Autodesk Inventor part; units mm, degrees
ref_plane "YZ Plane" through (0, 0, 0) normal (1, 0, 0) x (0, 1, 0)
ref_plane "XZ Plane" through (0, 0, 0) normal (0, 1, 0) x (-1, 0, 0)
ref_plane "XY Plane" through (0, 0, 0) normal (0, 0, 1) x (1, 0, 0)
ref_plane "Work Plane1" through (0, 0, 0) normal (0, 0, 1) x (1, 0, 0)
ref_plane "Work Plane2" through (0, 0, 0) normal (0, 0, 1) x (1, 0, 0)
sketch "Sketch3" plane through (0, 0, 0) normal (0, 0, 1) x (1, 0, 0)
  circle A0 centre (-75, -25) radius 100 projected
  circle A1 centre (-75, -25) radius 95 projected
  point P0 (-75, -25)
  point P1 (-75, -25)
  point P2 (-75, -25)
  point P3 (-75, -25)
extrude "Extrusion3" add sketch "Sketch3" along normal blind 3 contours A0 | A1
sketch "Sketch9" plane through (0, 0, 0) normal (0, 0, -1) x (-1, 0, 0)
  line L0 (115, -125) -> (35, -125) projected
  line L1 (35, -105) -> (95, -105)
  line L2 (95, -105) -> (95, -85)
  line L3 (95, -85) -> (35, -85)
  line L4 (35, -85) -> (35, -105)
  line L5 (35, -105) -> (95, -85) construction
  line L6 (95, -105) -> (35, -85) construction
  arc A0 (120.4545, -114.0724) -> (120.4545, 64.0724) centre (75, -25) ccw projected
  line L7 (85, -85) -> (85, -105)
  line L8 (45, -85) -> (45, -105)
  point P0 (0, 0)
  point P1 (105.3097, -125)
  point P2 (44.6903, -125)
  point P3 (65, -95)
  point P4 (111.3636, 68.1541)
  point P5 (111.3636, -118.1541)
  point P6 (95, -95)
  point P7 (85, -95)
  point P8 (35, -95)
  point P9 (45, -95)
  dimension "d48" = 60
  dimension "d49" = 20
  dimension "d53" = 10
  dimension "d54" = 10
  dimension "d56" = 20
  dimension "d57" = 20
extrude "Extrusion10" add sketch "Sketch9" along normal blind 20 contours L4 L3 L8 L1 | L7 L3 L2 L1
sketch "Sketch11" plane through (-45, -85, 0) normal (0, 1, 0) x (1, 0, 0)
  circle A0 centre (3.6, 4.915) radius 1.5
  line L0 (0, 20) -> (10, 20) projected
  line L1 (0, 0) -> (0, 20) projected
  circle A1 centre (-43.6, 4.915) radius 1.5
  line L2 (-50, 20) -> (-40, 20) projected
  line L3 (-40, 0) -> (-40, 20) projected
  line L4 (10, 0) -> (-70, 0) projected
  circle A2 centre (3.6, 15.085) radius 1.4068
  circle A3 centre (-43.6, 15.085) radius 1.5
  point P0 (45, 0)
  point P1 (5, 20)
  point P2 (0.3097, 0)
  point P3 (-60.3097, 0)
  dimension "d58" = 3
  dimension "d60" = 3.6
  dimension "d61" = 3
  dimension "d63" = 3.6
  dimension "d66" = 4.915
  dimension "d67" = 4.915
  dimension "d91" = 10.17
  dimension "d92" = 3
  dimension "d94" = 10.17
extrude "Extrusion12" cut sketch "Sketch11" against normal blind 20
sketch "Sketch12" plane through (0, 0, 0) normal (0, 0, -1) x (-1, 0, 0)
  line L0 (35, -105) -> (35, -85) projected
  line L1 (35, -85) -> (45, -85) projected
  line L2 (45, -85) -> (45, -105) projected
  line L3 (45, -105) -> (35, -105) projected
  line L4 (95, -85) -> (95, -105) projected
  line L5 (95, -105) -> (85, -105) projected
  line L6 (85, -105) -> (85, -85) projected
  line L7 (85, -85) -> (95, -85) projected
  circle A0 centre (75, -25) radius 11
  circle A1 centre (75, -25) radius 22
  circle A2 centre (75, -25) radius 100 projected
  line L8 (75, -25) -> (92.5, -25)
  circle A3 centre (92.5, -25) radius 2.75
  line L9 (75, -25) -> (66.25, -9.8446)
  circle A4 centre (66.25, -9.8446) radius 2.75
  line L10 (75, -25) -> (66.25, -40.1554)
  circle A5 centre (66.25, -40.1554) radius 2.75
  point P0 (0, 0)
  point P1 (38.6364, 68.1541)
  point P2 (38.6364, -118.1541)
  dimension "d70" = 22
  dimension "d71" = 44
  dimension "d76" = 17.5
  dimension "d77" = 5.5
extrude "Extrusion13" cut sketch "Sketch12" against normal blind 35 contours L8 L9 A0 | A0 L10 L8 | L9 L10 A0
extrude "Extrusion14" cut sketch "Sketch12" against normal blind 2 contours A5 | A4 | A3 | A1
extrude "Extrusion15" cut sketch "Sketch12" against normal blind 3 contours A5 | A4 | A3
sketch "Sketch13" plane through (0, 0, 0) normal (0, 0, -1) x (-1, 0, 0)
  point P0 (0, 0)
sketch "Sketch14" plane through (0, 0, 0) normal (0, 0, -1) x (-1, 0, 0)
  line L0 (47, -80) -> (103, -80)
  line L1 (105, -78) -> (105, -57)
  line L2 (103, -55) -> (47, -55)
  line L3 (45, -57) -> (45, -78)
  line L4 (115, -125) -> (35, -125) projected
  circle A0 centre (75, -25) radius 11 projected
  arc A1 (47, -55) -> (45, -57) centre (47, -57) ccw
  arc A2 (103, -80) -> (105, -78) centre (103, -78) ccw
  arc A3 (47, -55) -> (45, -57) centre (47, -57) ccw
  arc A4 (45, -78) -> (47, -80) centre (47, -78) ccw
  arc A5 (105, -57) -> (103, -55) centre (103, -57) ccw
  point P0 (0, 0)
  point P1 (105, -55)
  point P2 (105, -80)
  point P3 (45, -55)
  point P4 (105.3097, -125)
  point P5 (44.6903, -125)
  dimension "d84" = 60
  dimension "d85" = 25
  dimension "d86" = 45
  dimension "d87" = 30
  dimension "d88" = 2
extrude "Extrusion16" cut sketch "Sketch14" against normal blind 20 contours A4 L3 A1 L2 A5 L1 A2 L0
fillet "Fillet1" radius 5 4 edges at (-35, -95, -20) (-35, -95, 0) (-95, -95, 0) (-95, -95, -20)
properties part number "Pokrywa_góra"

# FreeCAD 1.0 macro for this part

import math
import FreeCAD as App
import Part
import Sketcher
from FreeCAD import Vector
Q = App.Units.Quantity


def edges_at(feature, points):
    """Names of the edges that pass closest to the given points."""
    edges = feature.Shape.Edges
    near = lambda p: min(range(len(edges)), key=lambda i: edges[i].distToShape(Part.Vertex(*p))[0])
    return sorted({f"Edge{near(p) + 1}" for p in points})

doc = App.newDocument("Part")
params = doc.addObject("Spreadsheet::Sheet", "Params")
for row, (alias, value) in enumerate([
    ("sketch1_diameter", "200 mm"),
    ("pad1_length", "3 mm"),
    ("sketch2_width", "10 mm"),
    ("sketch2_height", "20 mm"),
    ("pad2_length", "20 mm"),
    ("sketch3_diameter", "3 mm"),
    ("pocket1_length", "20 mm"),
    ("sketch4_diameter", "22 mm"),
    ("pocket2_length", "35 mm"),
    ("sketch5_diameter", "44 mm"),
    ("sketch5_radius", "11 mm"),
    ("pocket3_length", "2 mm"),
    ("sketch6_diameter", "5.5 mm"),
    ("pocket4_length", "3 mm"),
    ("sketch7_radius", "2 mm"),
    ("sketch7_width", "56 mm"),
    ("pocket5_length", "20 mm"),
    ("fillet_radius", "5 mm"),
], start=1):
    params.set(f"A{row}", alias)
    params.set(f"B{row}", "=" + value)
    params.setAlias(f"B{row}", alias)

body = doc.addObject("PartDesign::Body", "Body")

sketch1 = body.newObject("Sketcher::SketchObject", "Sketch")
sketch1.AttachmentSupport = (doc.getObject("XY_Plane"), [""])
sketch1.MapMode = "FlatFace"
sketch1.addGeometry(Part.Circle(Vector(-75, -25, 0), Vector(0, 0, 1), 100), False)
sketch1.addConstraint(Sketcher.Constraint("Diameter", 0, Q("200 mm")))
sketch1.addConstraint(Sketcher.Constraint("DistanceX", 0, 3, -1, 1, Q("75 mm")))
sketch1.addConstraint(Sketcher.Constraint("DistanceY", 0, 3, -1, 1, Q("25 mm")))
sketch1.setExpression("Constraints[0]", "Params.sketch1_diameter")
pad1 = body.newObject("PartDesign::Pad", "Pad")
pad1.Profile = sketch1
pad1.setExpression("Length", "Params.pad1_length")

sketch2 = body.newObject("Sketcher::SketchObject", "Sketch001")
sketch2.AttachmentSupport = (doc.getObject("XY_Plane"), [""])
sketch2.MapMode = "FlatFace"
sketch2.addGeometry(Part.LineSegment(Vector(-35, -85, 0), Vector(-35, -105, 0)), False)
sketch2.addGeometry(Part.LineSegment(Vector(-35, -105, 0), Vector(-45, -105, 0)), False)
sketch2.addGeometry(Part.LineSegment(Vector(-45, -105, 0), Vector(-45, -85, 0)), False)
sketch2.addGeometry(Part.LineSegment(Vector(-45, -85, 0), Vector(-35, -85, 0)), False)
sketch2.addGeometry(Part.LineSegment(Vector(-85, -85, 0), Vector(-85, -105, 0)), False)
sketch2.addGeometry(Part.LineSegment(Vector(-85, -105, 0), Vector(-95, -105, 0)), False)
sketch2.addGeometry(Part.LineSegment(Vector(-95, -105, 0), Vector(-95, -85, 0)), False)
sketch2.addGeometry(Part.LineSegment(Vector(-95, -85, 0), Vector(-85, -85, 0)), False)
sketch2.addConstraint(Sketcher.Constraint("Coincident", 0, 2, 1, 1))
sketch2.addConstraint(Sketcher.Constraint("Coincident", 1, 2, 2, 1))
sketch2.addConstraint(Sketcher.Constraint("Coincident", 2, 2, 3, 1))
sketch2.addConstraint(Sketcher.Constraint("Coincident", 3, 2, 0, 1))
sketch2.addConstraint(Sketcher.Constraint("Coincident", 4, 2, 5, 1))
sketch2.addConstraint(Sketcher.Constraint("Coincident", 5, 2, 6, 1))
sketch2.addConstraint(Sketcher.Constraint("Coincident", 6, 2, 7, 1))
sketch2.addConstraint(Sketcher.Constraint("Coincident", 7, 2, 4, 1))
sketch2.addConstraint(Sketcher.Constraint("Vertical", 0))
sketch2.addConstraint(Sketcher.Constraint("Horizontal", 1))
sketch2.addConstraint(Sketcher.Constraint("Vertical", 2))
sketch2.addConstraint(Sketcher.Constraint("Horizontal", 3))
sketch2.addConstraint(Sketcher.Constraint("Vertical", 4))
sketch2.addConstraint(Sketcher.Constraint("Horizontal", 5))
sketch2.addConstraint(Sketcher.Constraint("Vertical", 6))
sketch2.addConstraint(Sketcher.Constraint("Horizontal", 7))
sketch2.addConstraint(Sketcher.Constraint("Horizontal", 1, 2, 4, 2))
sketch2.addConstraint(Sketcher.Constraint("Horizontal", 3, 2, 6, 2))
sketch2.addConstraint(Sketcher.Constraint("Equal", 3, 5))
sketch2.addConstraint(Sketcher.Constraint("DistanceX", 1, 2, 1, 1, Q("10 mm")))
sketch2.addConstraint(Sketcher.Constraint("DistanceY", 0, 2, 0, 1, Q("20 mm")))
sketch2.addConstraint(Sketcher.Constraint("DistanceX", 5, 2, 0, 2, Q("60 mm")))
sketch2.addConstraint(Sketcher.Constraint("DistanceX", 0, 2, -1, 1, Q("35 mm")))
sketch2.addConstraint(Sketcher.Constraint("DistanceY", 0, 2, -1, 1, Q("105 mm")))
sketch2.setExpression("Constraints[19]", "Params.sketch2_width")
sketch2.setExpression("Constraints[20]", "Params.sketch2_height")
pad2 = body.newObject("PartDesign::Pad", "Pad001")
pad2.Profile = sketch2
pad2.setExpression("Length", "Params.pad2_length")
pad2.Reversed = True

sketch3 = body.newObject("Sketcher::SketchObject", "Sketch002")
sketch3.AttachmentSupport = (doc.getObject("XZ_Plane"), [""])
sketch3.MapMode = "FlatFace"
sketch3.AttachmentOffset = App.Placement(Vector(0, 0, 85), App.Rotation())
sketch3.addGeometry(Part.Circle(Vector(-41.4, -4.9, 0), Vector(0, 0, 1), 1.5), False)
sketch3.addGeometry(Part.Circle(Vector(-88.6, -4.9, 0), Vector(0, 0, 1), 1.5), False)
sketch3.addGeometry(Part.Circle(Vector(-41.4, -15.1, 0), Vector(0, 0, 1), 1.4), False)
sketch3.addGeometry(Part.Circle(Vector(-88.6, -15.1, 0), Vector(0, 0, 1), 1.5), False)
sketch3.addConstraint(Sketcher.Constraint("Equal", 0, 1))
sketch3.addConstraint(Sketcher.Constraint("Equal", 1, 3))
sketch3.addConstraint(Sketcher.Constraint("Horizontal", 0, 3, 1, 3))
sketch3.addConstraint(Sketcher.Constraint("Horizontal", 2, 3, 3, 3))
sketch3.addConstraint(Sketcher.Constraint("Vertical", 0, 3, 2, 3))
sketch3.addConstraint(Sketcher.Constraint("Vertical", 1, 3, 3, 3))
sketch3.addConstraint(Sketcher.Constraint("Diameter", 0, Q("3 mm")))
sketch3.addConstraint(Sketcher.Constraint("DistanceY", 2, 3, 0, 3, Q("10.17 mm")))
sketch3.addConstraint(Sketcher.Constraint("DistanceY", 0, 3, -1, 1, Q("4.915 mm")))
sketch3.addConstraint(Sketcher.Constraint("Diameter", 2, Q("2.8136 mm")))
sketch3.addConstraint(Sketcher.Constraint("DistanceX", 0, 3, -1, 1, Q("41.4 mm")))
sketch3.addConstraint(Sketcher.Constraint("DistanceX", 1, 3, -1, 1, Q("88.6 mm")))
sketch3.setExpression("Constraints[6]", "Params.sketch3_diameter")
pocket1 = body.newObject("PartDesign::Pocket", "Pocket")
pocket1.Profile = sketch3
pocket1.setExpression("Length", "Params.pocket1_length")
pocket1.Reversed = True

sketch4 = body.newObject("Sketcher::SketchObject", "Sketch003")
sketch4.AttachmentSupport = (doc.getObject("XY_Plane"), [""])
sketch4.MapMode = "FlatFace"
sketch4.addGeometry(Part.Circle(Vector(-75, -25, 0), Vector(0, 0, 1), 11), False)
sketch4.addConstraint(Sketcher.Constraint("Diameter", 0, Q("22 mm")))
sketch4.addConstraint(Sketcher.Constraint("DistanceX", 0, 3, -1, 1, Q("75 mm")))
sketch4.addConstraint(Sketcher.Constraint("DistanceY", 0, 3, -1, 1, Q("25 mm")))
sketch4.setExpression("Constraints[0]", "Params.sketch4_diameter")
pocket2 = body.newObject("PartDesign::Pocket", "Pocket001")
pocket2.Profile = sketch4
pocket2.setExpression("Length", "Params.pocket2_length")
pocket2.Reversed = True

sketch5 = body.newObject("Sketcher::SketchObject", "Sketch004")
sketch5.AttachmentSupport = (doc.getObject("XY_Plane"), [""])
sketch5.MapMode = "FlatFace"
sketch5.addGeometry(Part.Circle(Vector(-75, -25, 0), Vector(0, 0, 1), 22), False)
sketch5.addGeometry(Part.ArcOfCircle(Part.Circle(Vector(-75, -25, 0), Vector(0, 0, 1), 11), math.radians(60), math.radians(180)), False)
sketch5.addGeometry(Part.ArcOfCircle(Part.Circle(Vector(-75, -25, 0), Vector(0, 0, 1), 11), math.radians(180), math.radians(300)), False)
sketch5.addGeometry(Part.ArcOfCircle(Part.Circle(Vector(-75, -25, 0), Vector(0, 0, 1), 11), math.radians(-60), math.radians(60)), False)
sketch5.addConstraint(Sketcher.Constraint("Tangent", 1, 2, 2, 1))
sketch5.addConstraint(Sketcher.Constraint("Tangent", 2, 2, 3, 1))
sketch5.addConstraint(Sketcher.Constraint("Tangent", 3, 2, 1, 1))
sketch5.addConstraint(Sketcher.Constraint("Coincident", 1, 3, 0, 3))
sketch5.addConstraint(Sketcher.Constraint("Horizontal", 3, 3, 1, 2))
sketch5.addConstraint(Sketcher.Constraint("Vertical", 2, 2, 3, 2))
sketch5.addConstraint(Sketcher.Constraint("Diameter", 0, Q("44 mm")))
sketch5.addConstraint(Sketcher.Constraint("Radius", 1, Q("11 mm")))
sketch5.addConstraint(Sketcher.Constraint("DistanceX", 0, 3, 2, 2, Q("5.5 mm")))
sketch5.addConstraint(Sketcher.Constraint("DistanceX", 0, 3, -1, 1, Q("75 mm")))
sketch5.addConstraint(Sketcher.Constraint("DistanceY", 0, 3, -1, 1, Q("25 mm")))
sketch5.setExpression("Constraints[6]", "Params.sketch5_diameter")
sketch5.setExpression("Constraints[7]", "Params.sketch5_radius")
pocket3 = body.newObject("PartDesign::Pocket", "Pocket002")
pocket3.Profile = sketch5
pocket3.setExpression("Length", "Params.pocket3_length")
pocket3.Reversed = True

sketch6 = body.newObject("Sketcher::SketchObject", "Sketch005")
sketch6.AttachmentSupport = (doc.getObject("XY_Plane"), [""])
sketch6.MapMode = "FlatFace"
sketch6.addGeometry(Part.Circle(Vector(-66.2, -40.2, 0), Vector(0, 0, 1), 2.8), False)
sketch6.addGeometry(Part.Circle(Vector(-66.2, -9.8, 0), Vector(0, 0, 1), 2.8), False)
sketch6.addGeometry(Part.Circle(Vector(-92.5, -25, 0), Vector(0, 0, 1), 2.8), False)
sketch6.addConstraint(Sketcher.Constraint("Equal", 0, 1))
sketch6.addConstraint(Sketcher.Constraint("Equal", 1, 2))
sketch6.addConstraint(Sketcher.Constraint("Vertical", 0, 3, 1, 3))
sketch6.addConstraint(Sketcher.Constraint("Diameter", 0, Q("5.5 mm")))
sketch6.addConstraint(Sketcher.Constraint("DistanceY", 2, 3, -1, 1, Q("25 mm")))
sketch6.addConstraint(Sketcher.Constraint("DistanceX", 2, 3, -1, 1, Q("92.5 mm")))
sketch6.addConstraint(Sketcher.Constraint("DistanceX", 0, 3, -1, 1, Q("66.25 mm")))
sketch6.addConstraint(Sketcher.Constraint("DistanceY", 0, 3, -1, 1, Q("40.1554 mm")))
sketch6.addConstraint(Sketcher.Constraint("DistanceY", 1, 3, -1, 1, Q("9.8446 mm")))
sketch6.setExpression("Constraints[3]", "Params.sketch6_diameter")
pocket4 = body.newObject("PartDesign::Pocket", "Pocket003")
pocket4.Profile = sketch6
pocket4.setExpression("Length", "Params.pocket4_length")
pocket4.Reversed = True

sketch7 = body.newObject("Sketcher::SketchObject", "Sketch006")
sketch7.AttachmentSupport = (doc.getObject("XY_Plane"), [""])
sketch7.MapMode = "FlatFace"
sketch7.addGeometry(Part.ArcOfCircle(Part.Circle(Vector(-47, -78, 0), Vector(0, 0, 1), 2), math.radians(-90), math.radians(0)), False)
sketch7.addGeometry(Part.LineSegment(Vector(-47, -80, 0), Vector(-103, -80, 0)), False)
sketch7.addGeometry(Part.ArcOfCircle(Part.Circle(Vector(-103, -78, 0), Vector(0, 0, 1), 2), math.radians(180), math.radians(270)), False)
sketch7.addGeometry(Part.LineSegment(Vector(-105, -78, 0), Vector(-105, -57, 0)), False)
sketch7.addGeometry(Part.ArcOfCircle(Part.Circle(Vector(-103, -57, 0), Vector(0, 0, 1), 2), math.radians(90), math.radians(180)), False)
sketch7.addGeometry(Part.LineSegment(Vector(-103, -55, 0), Vector(-47, -55, 0)), False)
sketch7.addGeometry(Part.ArcOfCircle(Part.Circle(Vector(-47, -57, 0), Vector(0, 0, 1), 2), math.radians(0), math.radians(90)), False)
sketch7.addGeometry(Part.LineSegment(Vector(-45, -57, 0), Vector(-45, -78, 0)), False)
sketch7.addConstraint(Sketcher.Constraint("Tangent", 0, 1, 1, 1))
sketch7.addConstraint(Sketcher.Constraint("Tangent", 1, 2, 2, 2))
sketch7.addConstraint(Sketcher.Constraint("Tangent", 2, 1, 3, 1))
sketch7.addConstraint(Sketcher.Constraint("Tangent", 3, 2, 4, 2))
sketch7.addConstraint(Sketcher.Constraint("Tangent", 4, 1, 5, 1))
sketch7.addConstraint(Sketcher.Constraint("Tangent", 5, 2, 6, 2))
sketch7.addConstraint(Sketcher.Constraint("Tangent", 6, 1, 7, 1))
sketch7.addConstraint(Sketcher.Constraint("Tangent", 7, 2, 0, 2))
sketch7.addConstraint(Sketcher.Constraint("Horizontal", 1))
sketch7.addConstraint(Sketcher.Constraint("Vertical", 3))
sketch7.addConstraint(Sketcher.Constraint("Horizontal", 5))
sketch7.addConstraint(Sketcher.Constraint("Vertical", 7))
sketch7.addConstraint(Sketcher.Constraint("Equal", 0, 2))
sketch7.addConstraint(Sketcher.Constraint("Equal", 2, 4))
sketch7.addConstraint(Sketcher.Constraint("Equal", 4, 6))
sketch7.addConstraint(Sketcher.Constraint("Radius", 0, Q("2 mm")))
sketch7.addConstraint(Sketcher.Constraint("DistanceX", 6, 1, -1, 1, Q("45 mm")))
sketch7.addConstraint(Sketcher.Constraint("DistanceY", 1, 2, 4, 1, Q("25 mm")))
sketch7.addConstraint(Sketcher.Constraint("DistanceX", 1, 2, 1, 1, Q("56 mm")))
sketch7.addConstraint(Sketcher.Constraint("DistanceY", 0, 3, -1, 1, Q("78 mm")))
sketch7.setExpression("Constraints[15]", "Params.sketch7_radius")
sketch7.setExpression("Constraints[18]", "Params.sketch7_width")
pocket5 = body.newObject("PartDesign::Pocket", "Pocket004")
pocket5.Profile = sketch7
pocket5.setExpression("Length", "Params.pocket5_length")
pocket5.Reversed = True
doc.recompute()

fillet = body.newObject("PartDesign::Fillet", "Fillet")
fillet.Base = (pocket5, edges_at(pocket5, [
    (-35, -95, -20),
    (-35, -95, 0),
    (-95, -95, 0),
    (-95, -95, -20),
]))
fillet.setExpression("Radius", "Params.fillet_radius")

doc.recompute()
